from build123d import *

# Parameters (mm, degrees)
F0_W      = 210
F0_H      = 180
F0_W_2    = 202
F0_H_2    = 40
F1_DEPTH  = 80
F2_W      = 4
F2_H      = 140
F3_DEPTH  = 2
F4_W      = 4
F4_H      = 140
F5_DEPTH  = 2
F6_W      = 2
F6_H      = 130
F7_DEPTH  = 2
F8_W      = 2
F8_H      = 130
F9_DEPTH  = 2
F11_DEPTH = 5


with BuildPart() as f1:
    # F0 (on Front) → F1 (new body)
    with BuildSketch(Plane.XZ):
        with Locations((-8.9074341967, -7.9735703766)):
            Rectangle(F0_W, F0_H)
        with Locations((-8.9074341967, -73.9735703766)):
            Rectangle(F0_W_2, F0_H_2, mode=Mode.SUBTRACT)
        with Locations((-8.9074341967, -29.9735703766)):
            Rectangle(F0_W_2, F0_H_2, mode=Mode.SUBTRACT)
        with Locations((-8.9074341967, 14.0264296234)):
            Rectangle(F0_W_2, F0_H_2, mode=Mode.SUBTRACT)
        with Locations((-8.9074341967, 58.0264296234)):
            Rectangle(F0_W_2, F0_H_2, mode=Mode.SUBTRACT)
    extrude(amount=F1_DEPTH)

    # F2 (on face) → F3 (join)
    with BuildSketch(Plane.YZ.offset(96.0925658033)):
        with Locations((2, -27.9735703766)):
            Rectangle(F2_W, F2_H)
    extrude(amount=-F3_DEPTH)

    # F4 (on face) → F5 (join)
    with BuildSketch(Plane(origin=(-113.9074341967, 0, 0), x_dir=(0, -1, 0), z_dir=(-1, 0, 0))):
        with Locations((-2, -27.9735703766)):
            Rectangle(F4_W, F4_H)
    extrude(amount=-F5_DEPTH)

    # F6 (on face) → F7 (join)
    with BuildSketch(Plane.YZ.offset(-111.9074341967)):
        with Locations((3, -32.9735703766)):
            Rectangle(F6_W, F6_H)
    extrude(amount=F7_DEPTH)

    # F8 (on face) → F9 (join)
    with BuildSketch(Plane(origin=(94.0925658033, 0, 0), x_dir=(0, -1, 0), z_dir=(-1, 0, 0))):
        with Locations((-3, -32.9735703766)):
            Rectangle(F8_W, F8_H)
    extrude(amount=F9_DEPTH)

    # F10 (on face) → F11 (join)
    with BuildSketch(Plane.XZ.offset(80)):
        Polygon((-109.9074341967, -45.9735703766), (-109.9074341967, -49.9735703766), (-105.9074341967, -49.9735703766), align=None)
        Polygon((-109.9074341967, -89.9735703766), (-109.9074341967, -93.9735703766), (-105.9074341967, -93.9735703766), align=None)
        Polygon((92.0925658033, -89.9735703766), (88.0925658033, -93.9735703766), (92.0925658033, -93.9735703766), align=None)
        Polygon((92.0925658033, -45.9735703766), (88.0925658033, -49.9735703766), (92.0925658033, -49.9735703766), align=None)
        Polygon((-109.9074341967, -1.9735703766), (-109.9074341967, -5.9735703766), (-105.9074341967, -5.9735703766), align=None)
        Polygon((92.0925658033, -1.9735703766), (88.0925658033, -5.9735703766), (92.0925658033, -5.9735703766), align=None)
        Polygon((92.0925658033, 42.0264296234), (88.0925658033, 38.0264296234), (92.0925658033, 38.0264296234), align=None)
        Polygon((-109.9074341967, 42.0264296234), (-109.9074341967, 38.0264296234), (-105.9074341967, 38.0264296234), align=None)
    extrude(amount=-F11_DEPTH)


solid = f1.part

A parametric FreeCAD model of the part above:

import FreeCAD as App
import Part
import Sketcher
from FreeCAD import Vector
Q = App.Units.Quantity

doc = App.newDocument("Part")
body = doc.addObject("PartDesign::Body", "Body")

# Sketch on XZ plane
sketch1 = body.newObject("Sketcher::SketchObject", "Sketch")
sketch1.AttachmentSupport = (doc.getObject("XZ_Plane"), [""])
sketch1.MapMode = "FlatFace"
sketch1.addGeometry([
    Part.LineSegment(Vector(-114, 82, 0), Vector(-114, -98, 0)),  # 0
    Part.LineSegment(Vector(-114, -98, 0), Vector(96, -98, 0)),  # 1
    Part.LineSegment(Vector(96, -98, 0), Vector(96, 82, 0)),  # 2
    Part.LineSegment(Vector(96, 82, 0), Vector(-114, 82, 0)),  # 3
    Part.LineSegment(Vector(92, -94, 0), Vector(-110, -94, 0)),  # 4
    Part.LineSegment(Vector(-110, -94, 0), Vector(-110, -54, 0)),  # 5
    Part.LineSegment(Vector(-110, -54, 0), Vector(92, -54, 0)),  # 6
    Part.LineSegment(Vector(92, -54, 0), Vector(92, -94, 0)),  # 7
    Part.LineSegment(Vector(92, -50, 0), Vector(-110, -50, 0)),  # 8
    Part.LineSegment(Vector(-110, -50, 0), Vector(-110, -10, 0)),  # 9
    Part.LineSegment(Vector(-110, -10, 0), Vector(92, -10, 0)),  # 10
    Part.LineSegment(Vector(92, -10, 0), Vector(92, -50, 0)),  # 11
    Part.LineSegment(Vector(92, -6, 0), Vector(-110, -6, 0)),  # 12
    Part.LineSegment(Vector(-110, -6, 0), Vector(-110, 34, 0)),  # 13
    Part.LineSegment(Vector(-110, 34, 0), Vector(92, 34, 0)),  # 14
    Part.LineSegment(Vector(92, 34, 0), Vector(92, -6, 0)),  # 15
    Part.LineSegment(Vector(92, 38, 0), Vector(-110, 38, 0)),  # 16
    Part.LineSegment(Vector(-110, 38, 0), Vector(-110, 78, 0)),  # 17
    Part.LineSegment(Vector(-110, 78, 0), Vector(92, 78, 0)),  # 18
    Part.LineSegment(Vector(92, 78, 0), Vector(92, 38, 0)),  # 19
], False)
sketch1.addConstraint([
    Sketcher.Constraint("Coincident", 0, 2, 1, 1),
    Sketcher.Constraint("Coincident", 1, 2, 2, 1),
    Sketcher.Constraint("Coincident", 2, 2, 3, 1),
    Sketcher.Constraint("Coincident", 3, 2, 0, 1),
    Sketcher.Constraint("Coincident", 4, 2, 5, 1),
    Sketcher.Constraint("Coincident", 5, 2, 6, 1),
    Sketcher.Constraint("Coincident", 6, 2, 7, 1),
    Sketcher.Constraint("Coincident", 7, 2, 4, 1),
    Sketcher.Constraint("Coincident", 8, 2, 9, 1),
    Sketcher.Constraint("Coincident", 9, 2, 10, 1),
    Sketcher.Constraint("Coincident", 10, 2, 11, 1),
    Sketcher.Constraint("Coincident", 11, 2, 8, 1),
    Sketcher.Constraint("Coincident", 12, 2, 13, 1),
    Sketcher.Constraint("Coincident", 13, 2, 14, 1),
    Sketcher.Constraint("Coincident", 14, 2, 15, 1),
    Sketcher.Constraint("Coincident", 15, 2, 12, 1),
    Sketcher.Constraint("Coincident", 16, 2, 17, 1),
    Sketcher.Constraint("Coincident", 17, 2, 18, 1),
    Sketcher.Constraint("Coincident", 18, 2, 19, 1),
    Sketcher.Constraint("Coincident", 19, 2, 16, 1),
    Sketcher.Constraint("Vertical", 0),
    Sketcher.Constraint("Horizontal", 1),
    Sketcher.Constraint("Vertical", 2),
    Sketcher.Constraint("Horizontal", 3),
    Sketcher.Constraint("Horizontal", 4),
    Sketcher.Constraint("Vertical", 5),
    Sketcher.Constraint("Horizontal", 6),
    Sketcher.Constraint("Vertical", 7),
    Sketcher.Constraint("Horizontal", 8),
    Sketcher.Constraint("Vertical", 9),
    Sketcher.Constraint("Horizontal", 10),
    Sketcher.Constraint("Vertical", 11),
    Sketcher.Constraint("Horizontal", 12),
    Sketcher.Constraint("Vertical", 13),
    Sketcher.Constraint("Horizontal", 14),
    Sketcher.Constraint("Vertical", 15),
    Sketcher.Constraint("Horizontal", 16),
    Sketcher.Constraint("Vertical", 17),
    Sketcher.Constraint("Horizontal", 18),
    Sketcher.Constraint("Vertical", 19),
    Sketcher.Constraint("Vertical", 5, 2, 8, 2),
    Sketcher.Constraint("Vertical", 7, 2, 10, 2),
    Sketcher.Constraint("Vertical", 9, 2, 12, 2),
    Sketcher.Constraint("Vertical", 11, 2, 14, 2),
    Sketcher.Constraint("Vertical", 13, 2, 16, 2),
    Sketcher.Constraint("Vertical", 15, 2, 18, 2),
    Sketcher.Constraint("Equal", 7, 9),
    Sketcher.Constraint("Equal", 11, 13),
    Sketcher.Constraint("Equal", 15, 17),
    Sketcher.Constraint("DistanceX", 1, 1, 1, 2, Q("210 mm")),
    Sketcher.Constraint("DistanceX", 4, 2, 4, 1, Q("202 mm")),
    Sketcher.Constraint("DistanceY", 0, 2, 0, 1, Q("180 mm")),
    Sketcher.Constraint("DistanceY", 5, 1, 5, 2, Q("40 mm")),
    Sketcher.Constraint("DistanceX", 0, 2, 4, 2, Q("4 mm")),
    Sketcher.Constraint("DistanceY", 0, 2, 4, 2, Q("4 mm")),
    Sketcher.Constraint("DistanceY", 5, 2, 8, 2, Q("4 mm")),
    Sketcher.Constraint("DistanceY", 9, 2, 12, 2, Q("4 mm")),
    Sketcher.Constraint("DistanceY", 13, 2, 16, 2, Q("4 mm")),
    Sketcher.Constraint("DistanceY", 0, 2, -1, 1, Q("97.97357 mm")),
    Sketcher.Constraint("DistanceX", 0, 2, -1, 1, Q("113.907434 mm")),
])
pad1 = body.newObject("PartDesign::Pad", "Pad")
pad1.Profile = sketch1
pad1.Length = 80

# Sketch on YZ plane
sketch2 = body.newObject("Sketcher::SketchObject", "Sketch001")
sketch2.AttachmentSupport = (doc.getObject("YZ_Plane"), [""])
sketch2.MapMode = "FlatFace"
sketch2.AttachmentOffset = App.Placement(Vector(0, 0, 96.092566), App.Rotation())
sketch2.addGeometry([
    Part.LineSegment(Vector(0, 42, 0), Vector(0, -98, 0)),
    Part.LineSegment(Vector(0, -98, 0), Vector(4, -98, 0)),
    Part.LineSegment(Vector(4, -98, 0), Vector(4, 42, 0)),
    Part.LineSegment(Vector(4, 42, 0), Vector(0, 42, 0)),
], False)
sketch2.addConstraint([
    Sketcher.Constraint("Coincident", 0, 2, 1, 1),
    Sketcher.Constraint("Coincident", 1, 2, 2, 1),
    Sketcher.Constraint("Coincident", 2, 2, 3, 1),
    Sketcher.Constraint("Coincident", 3, 2, 0, 1),
    Sketcher.Constraint("Vertical", 0),
    Sketcher.Constraint("Horizontal", 1),
    Sketcher.Constraint("Vertical", 2),
    Sketcher.Constraint("Horizontal", 3),
    Sketcher.Constraint("PointOnObject", 0, 2, -2),
    Sketcher.Constraint("DistanceX", 1, 1, 1, 2, Q("4 mm")),
    Sketcher.Constraint("DistanceY", 0, 2, 0, 1, Q("140 mm")),
    Sketcher.Constraint("DistanceY", 0, 2, -1, 1, Q("97.97357 mm")),
])
pad2 = body.newObject("PartDesign::Pad", "Pad001")
pad2.Profile = sketch2
pad2.Length = 2
pad2.Reversed = True

# Sketch on YZ plane
sketch3 = body.newObject("Sketcher::SketchObject", "Sketch002")
sketch3.AttachmentSupport = (doc.getObject("YZ_Plane"), [""])
sketch3.MapMode = "FlatFace"
sketch3.AttachmentOffset = App.Placement(Vector(0, 0, -113.907434), App.Rotation())
sketch3.addGeometry([
    Part.LineSegment(Vector(4, 42, 0), Vector(4, -98, 0)),
    Part.LineSegment(Vector(4, -98, 0), Vector(0, -98, 0)),
    Part.LineSegment(Vector(0, -98, 0), Vector(0, 42, 0)),
    Part.LineSegment(Vector(0, 42, 0), Vector(4, 42, 0)),
], False)
sketch3.addConstraint([
    Sketcher.Constraint("Coincident", 0, 2, 1, 1),
    Sketcher.Constraint("Coincident", 1, 2, 2, 1),
    Sketcher.Constraint("Coincident", 2, 2, 3, 1),
    Sketcher.Constraint("Coincident", 3, 2, 0, 1),
    Sketcher.Constraint("Vertical", 0),
    Sketcher.Constraint("Horizontal", 1),
    Sketcher.Constraint("Vertical", 2),
    Sketcher.Constraint("Horizontal", 3),
    Sketcher.Constraint("PointOnObject", 1, 2, -2),
    Sketcher.Constraint("DistanceX", 1, 2, 1, 1, Q("4 mm")),
    Sketcher.Constraint("DistanceY", 0, 2, 0, 1, Q("140 mm")),
    Sketcher.Constraint("DistanceY", 0, 2, -1, 1, Q("97.97357 mm")),
])
pad3 = body.newObject("PartDesign::Pad", "Pad002")
pad3.Profile = sketch3
pad3.Length = 2

# Sketch on YZ plane
sketch4 = body.newObject("Sketcher::SketchObject", "Sketch003")
sketch4.AttachmentSupport = (doc.getObject("YZ_Plane"), [""])
sketch4.MapMode = "FlatFace"
sketch4.AttachmentOffset = App.Placement(Vector(0, 0, -111.907434), App.Rotation())
sketch4.addGeometry([
    Part.LineSegment(Vector(2, 32, 0), Vector(2, -98, 0)),
    Part.LineSegment(Vector(2, -98, 0), Vector(4, -98, 0)),
    Part.LineSegment(Vector(4, -98, 0), Vector(4, 32, 0)),
    Part.LineSegment(Vector(4, 32, 0), Vector(2, 32, 0)),
], False)
sketch4.addConstraint([
    Sketcher.Constraint("Coincident", 0, 2, 1, 1),
    Sketcher.Constraint("Coincident", 1, 2, 2, 1),
    Sketcher.Constraint("Coincident", 2, 2, 3, 1),
    Sketcher.Constraint("Coincident", 3, 2, 0, 1),
    Sketcher.Constraint("Vertical", 0),
    Sketcher.Constraint("Horizontal", 1),
    Sketcher.Constraint("Vertical", 2),
    Sketcher.Constraint("Horizontal", 3),
    Sketcher.Constraint("DistanceX", 1, 1, 1, 2, Q("2 mm")),
    Sketcher.Constraint("DistanceY", 0, 2, 0, 1, Q("130 mm")),
    Sketcher.Constraint("DistanceX", -1, 1, 0, 2, Q("2 mm")),
    Sketcher.Constraint("DistanceY", 0, 2, -1, 1, Q("97.97357 mm")),
])
pad4 = body.newObject("PartDesign::Pad", "Pad003")
pad4.Profile = sketch4
pad4.Length = 2

# Sketch on YZ plane
sketch5 = body.newObject("Sketcher::SketchObject", "Sketch004")
sketch5.AttachmentSupport = (doc.getObject("YZ_Plane"), [""])
sketch5.MapMode = "FlatFace"
sketch5.AttachmentOffset = App.Placement(Vector(0, 0, 94.092566), App.Rotation())
sketch5.addGeometry([
    Part.LineSegment(Vector(4, 32, 0), Vector(4, -98, 0)),
    Part.LineSegment(Vector(4, -98, 0), Vector(2, -98, 0)),
    Part.LineSegment(Vector(2, -98, 0), Vector(2, 32, 0)),
    Part.LineSegment(Vector(2, 32, 0), Vector(4, 32, 0)),
], False)
sketch5.addConstraint([
    Sketcher.Constraint("Coincident", 0, 2, 1, 1),
    Sketcher.Constraint("Coincident", 1, 2, 2, 1),
    Sketcher.Constraint("Coincident", 2, 2, 3, 1),
    Sketcher.Constraint("Coincident", 3, 2, 0, 1),
    Sketcher.Constraint("Vertical", 0),
    Sketcher.Constraint("Horizontal", 1),
    Sketcher.Constraint("Vertical", 2),
    Sketcher.Constraint("Horizontal", 3),
    Sketcher.Constraint("DistanceX", 1, 2, 1, 1, Q("2 mm")),
    Sketcher.Constraint("DistanceY", 0, 2, 0, 1, Q("130 mm")),
    Sketcher.Constraint("DistanceX", -1, 1, 0, 2, Q("4 mm")),
    Sketcher.Constraint("DistanceY", 0, 2, -1, 1, Q("97.97357 mm")),
])
pad5 = body.newObject("PartDesign::Pad", "Pad004")
pad5.Profile = sketch5
pad5.Length = 2
pad5.Reversed = True

# Sketch on XZ plane
sketch6 = body.newObject("Sketcher::SketchObject", "Sketch005")
sketch6.AttachmentSupport = (doc.getObject("XZ_Plane"), [""])
sketch6.MapMode = "FlatFace"
sketch6.AttachmentOffset = App.Placement(Vector(0, 0, 80), App.Rotation())
sketch6.addGeometry([
    Part.LineSegment(Vector(-109.9, -46, 0), Vector(-109.9, -50, 0)),  # 0
    Part.LineSegment(Vector(-109.9, -50, 0), Vector(-105.9, -50, 0)),  # 1
    Part.LineSegment(Vector(-105.9, -50, 0), Vector(-109.9, -46, 0)),  # 2
    Part.LineSegment(Vector(-109.9, -90, 0), Vector(-109.9, -94, 0)),  # 3
    Part.LineSegment(Vector(-109.9, -94, 0), Vector(-105.9, -94, 0)),  # 4
    Part.LineSegment(Vector(-105.9, -94, 0), Vector(-109.9, -90, 0)),  # 5
    Part.LineSegment(Vector(92.1, -90, 0), Vector(88.1, -94, 0)),  # 6
    Part.LineSegment(Vector(88.1, -94, 0), Vector(92.1, -94, 0)),  # 7
    Part.LineSegment(Vector(92.1, -94, 0), Vector(92.1, -90, 0)),  # 8
    Part.LineSegment(Vector(92.1, -46, 0), Vector(88.1, -50, 0)),  # 9
    Part.LineSegment(Vector(88.1, -50, 0), Vector(92.1, -50, 0)),  # 10
    Part.LineSegment(Vector(92.1, -50, 0), Vector(92.1, -46, 0)),  # 11
    Part.LineSegment(Vector(-109.9, -2, 0), Vector(-109.9, -6, 0)),  # 12
    Part.LineSegment(Vector(-109.9, -6, 0), Vector(-105.9, -6, 0)),  # 13
    Part.LineSegment(Vector(-105.9, -6, 0), Vector(-109.9, -2, 0)),  # 14
    Part.LineSegment(Vector(92.1, -2, 0), Vector(88.1, -6, 0)),  # 15
    Part.LineSegment(Vector(88.1, -6, 0), Vector(92.1, -6, 0)),  # 16
    Part.LineSegment(Vector(92.1, -6, 0), Vector(92.1, -2, 0)),  # 17
    Part.LineSegment(Vector(92.1, 42, 0), Vector(88.1, 38, 0)),  # 18
    Part.LineSegment(Vector(88.1, 38, 0), Vector(92.1, 38, 0)),  # 19
    Part.LineSegment(Vector(92.1, 38, 0), Vector(92.1, 42, 0)),  # 20
    Part.LineSegment(Vector(-109.9, 42, 0), Vector(-109.9, 38, 0)),  # 21
    Part.LineSegment(Vector(-109.9, 38, 0), Vector(-105.9, 38, 0)),  # 22
    Part.LineSegment(Vector(-105.9, 38, 0), Vector(-109.9, 42, 0)),  # 23
], False)
sketch6.addConstraint([
    Sketcher.Constraint("Coincident", 0, 2, 1, 1),
    Sketcher.Constraint("Coincident", 1, 2, 2, 1),
    Sketcher.Constraint("Coincident", 2, 2, 0, 1),
    Sketcher.Constraint("Coincident", 3, 2, 4, 1),
    Sketcher.Constraint("Coincident", 4, 2, 5, 1),
    Sketcher.Constraint("Coincident", 5, 2, 3, 1),
    Sketcher.Constraint("Coincident", 6, 2, 7, 1),
    Sketcher.Constraint("Coincident", 7, 2, 8, 1),
    Sketcher.Constraint("Coincident", 8, 2, 6, 1),
    Sketcher.Constraint("Coincident", 9, 2, 10, 1),
    Sketcher.Constraint("Coincident", 10, 2, 11, 1),
    Sketcher.Constraint("Coincident", 11, 2, 9, 1),
    Sketcher.Constraint("Coincident", 12, 2, 13, 1),
    Sketcher.Constraint("Coincident", 13, 2, 14, 1),
    Sketcher.Constraint("Coincident", 14, 2, 12, 1),
    Sketcher.Constraint("Coincident", 15, 2, 16, 1),
    Sketcher.Constraint("Coincident", 16, 2, 17, 1),
    Sketcher.Constraint("Coincident", 17, 2, 15, 1),
    Sketcher.Constraint("Coincident", 18, 2, 19, 1),
    Sketcher.Constraint("Coincident", 19, 2, 20, 1),
    Sketcher.Constraint("Coincident", 20, 2, 18, 1),
    Sketcher.Constraint("Coincident", 21, 2, 22, 1),
    Sketcher.Constraint("Coincident", 22, 2, 23, 1),
    Sketcher.Constraint("Coincident", 23, 2, 21, 1),
    Sketcher.Constraint("Vertical", 0),
    Sketcher.Constraint("Horizontal", 1),
    Sketcher.Constraint("Vertical", 3),
    Sketcher.Constraint("Horizontal", 4),
    Sketcher.Constraint("Horizontal", 7),
    Sketcher.Constraint("Vertical", 8),
    Sketcher.Constraint("Horizontal", 10),
    Sketcher.Constraint("Vertical", 11),
    Sketcher.Constraint("Vertical", 12),
    Sketcher.Constraint("Horizontal", 13),
    Sketcher.Constraint("Horizontal", 16),
    Sketcher.Constraint("Vertical", 17),
    Sketcher.Constraint("Horizontal", 19),
    Sketcher.Constraint("Vertical", 20),
    Sketcher.Constraint("Vertical", 21),
    Sketcher.Constraint("Horizontal", 22),
    Sketcher.Constraint("Parallel", 2, 5),
    Sketcher.Constraint("Perpendicular", 5, 6),
    Sketcher.Constraint("Parallel", 6, 9),
    Sketcher.Constraint("Perpendicular", 9, 14),
    Sketcher.Constraint("Perpendicular", 14, 15),
    Sketcher.Constraint("Parallel", 15, 18),
    Sketcher.Constraint("Perpendicular", 18, 23),
    Sketcher.Constraint("Horizontal", 4, 2, 6, 2),
    Sketcher.Constraint("Horizontal", 5, 2, 8, 2),
    Sketcher.Constraint("Horizontal", 1, 2, 9, 2),
    Sketcher.Constraint("Horizontal", 2, 2, 11, 2),
    Sketcher.Constraint("Horizontal", 13, 2, 15, 2),
    Sketcher.Constraint("Horizontal", 14, 2, 17, 2),
    Sketcher.Constraint("Horizontal", 19, 2, 21, 2),
    Sketcher.Constraint("Horizontal", 20, 2, 23, 2),
    Sketcher.Constraint("Vertical", 2, 2, 3, 2),
    Sketcher.Constraint("Vertical", 1, 2, 4, 2),
    Sketcher.Constraint("Vertical", 6, 2, 9, 2),
    Sketcher.Constraint("Vertical", 5, 2, 12, 2),
    Sketcher.Constraint("Vertical", 4, 2, 13, 2),
    Sketcher.Constraint("Vertical", 9, 2, 15, 2),
    Sketcher.Constraint("Vertical", 15, 2, 18, 2),
    Sketcher.Constraint("Vertical", 17, 2, 19, 2),
    Sketcher.Constraint("Vertical", 14, 2, 21, 2),
    Sketcher.Constraint("Equal", 4, 7),
    Sketcher.Constraint("DistanceX", 1, 1, 1, 2, Q("4 mm")),
    Sketcher.Constraint("DistanceY", 3, 2, 0, 2, Q("44 mm")),
    Sketcher.Constraint("DistanceX", 4, 2, 6, 2, Q("194 mm")),
    Sketcher.Constraint("DistanceY", 2, 2, 12, 2, Q("40 mm")),
    Sketcher.Constraint("DistanceY", 17, 2, 18, 2, Q("40 mm")),
    Sketcher.Constraint("DistanceY", 0, 2, -1, 1, Q("49.97357 mm")),
    Sketcher.Constraint("DistanceX", 0, 2, -1, 1, Q("109.907434 mm")),
])
pad6 = body.newObject("PartDesign::Pad", "Pad005")
pad6.Profile = sketch6
pad6.Length = 5
pad6.Reversed = True

doc.recompute()
